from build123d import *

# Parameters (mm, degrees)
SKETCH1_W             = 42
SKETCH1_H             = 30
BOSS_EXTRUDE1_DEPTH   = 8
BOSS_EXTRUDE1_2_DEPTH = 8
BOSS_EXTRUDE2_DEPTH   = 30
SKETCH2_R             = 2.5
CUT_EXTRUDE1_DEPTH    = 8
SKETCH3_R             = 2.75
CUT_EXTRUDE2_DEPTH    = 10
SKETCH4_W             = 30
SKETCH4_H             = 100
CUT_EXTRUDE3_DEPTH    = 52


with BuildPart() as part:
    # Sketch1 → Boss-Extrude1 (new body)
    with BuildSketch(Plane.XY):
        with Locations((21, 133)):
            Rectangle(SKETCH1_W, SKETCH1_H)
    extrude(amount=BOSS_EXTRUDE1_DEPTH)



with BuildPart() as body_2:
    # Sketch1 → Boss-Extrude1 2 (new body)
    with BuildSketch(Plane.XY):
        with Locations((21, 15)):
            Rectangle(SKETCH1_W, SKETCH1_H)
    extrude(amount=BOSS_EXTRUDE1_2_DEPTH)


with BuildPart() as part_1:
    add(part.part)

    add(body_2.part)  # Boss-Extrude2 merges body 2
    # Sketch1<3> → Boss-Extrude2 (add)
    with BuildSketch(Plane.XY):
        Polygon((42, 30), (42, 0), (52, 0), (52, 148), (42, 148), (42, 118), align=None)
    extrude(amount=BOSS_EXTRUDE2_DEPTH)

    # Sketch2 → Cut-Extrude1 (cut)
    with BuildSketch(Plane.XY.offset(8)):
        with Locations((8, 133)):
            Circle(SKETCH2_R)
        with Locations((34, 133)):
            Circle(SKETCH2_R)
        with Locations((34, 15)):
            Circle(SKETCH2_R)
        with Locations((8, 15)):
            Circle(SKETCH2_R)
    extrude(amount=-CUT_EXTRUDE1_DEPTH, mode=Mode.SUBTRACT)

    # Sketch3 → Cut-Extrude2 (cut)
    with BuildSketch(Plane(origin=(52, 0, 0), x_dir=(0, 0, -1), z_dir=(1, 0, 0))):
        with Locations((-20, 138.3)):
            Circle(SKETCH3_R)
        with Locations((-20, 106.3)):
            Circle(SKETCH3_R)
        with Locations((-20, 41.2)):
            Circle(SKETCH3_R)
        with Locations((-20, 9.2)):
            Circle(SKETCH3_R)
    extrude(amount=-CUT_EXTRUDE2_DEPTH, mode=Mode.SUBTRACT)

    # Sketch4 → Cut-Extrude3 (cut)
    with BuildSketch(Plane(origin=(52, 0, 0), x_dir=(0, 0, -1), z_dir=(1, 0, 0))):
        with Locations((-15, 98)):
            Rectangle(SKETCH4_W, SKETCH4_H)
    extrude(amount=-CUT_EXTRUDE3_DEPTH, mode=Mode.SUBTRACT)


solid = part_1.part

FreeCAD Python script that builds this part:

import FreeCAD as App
import Part
import Sketcher

V = App.Vector
Q = App.Units.Quantity

doc = App.newDocument("Part")
body = doc.addObject("PartDesign::Body", "Body")

sketch1 = body.newObject("Sketcher::SketchObject", "Sketch")
sketch1.AttachmentSupport = (doc.getObject("XY_Plane"), [""])
sketch1.MapMode = "FlatFace"
sketch1.addGeometry(Part.LineSegment(V(0, 148, 0), V(0, 118, 0)), False)
sketch1.addGeometry(Part.LineSegment(V(0, 118, 0), V(42, 118, 0)), False)
sketch1.addGeometry(Part.LineSegment(V(42, 118, 0), V(42, 148, 0)), False)
sketch1.addGeometry(Part.LineSegment(V(42, 148, 0), V(0, 148, 0)), False)
sketch1.addConstraint(Sketcher.Constraint("Coincident", 0, 2, 1, 1))
sketch1.addConstraint(Sketcher.Constraint("Coincident", 1, 2, 2, 1))
sketch1.addConstraint(Sketcher.Constraint("Coincident", 2, 2, 3, 1))
sketch1.addConstraint(Sketcher.Constraint("Coincident", 3, 2, 0, 1))
sketch1.addConstraint(Sketcher.Constraint("Vertical", 0))
sketch1.addConstraint(Sketcher.Constraint("Horizontal", 1))
sketch1.addConstraint(Sketcher.Constraint("Vertical", 2))
sketch1.addConstraint(Sketcher.Constraint("Horizontal", 3))
sketch1.addConstraint(Sketcher.Constraint("PointOnObject", 0, 2, -2))
sketch1.addConstraint(Sketcher.Constraint("DistanceX", 1, 1, 1, 2, Q("42 mm")))
sketch1.addConstraint(Sketcher.Constraint("DistanceY", 0, 2, 0, 1, Q("30 mm")))
sketch1.addConstraint(Sketcher.Constraint("DistanceY", -1, 1, 0, 2, Q("118 mm")))
pad1 = body.newObject("PartDesign::Pad", "Pad")
pad1.Profile = sketch1
pad1.Length = 8
body2 = doc.addObject("PartDesign::Body", "Body001")

sketch2 = body2.newObject("Sketcher::SketchObject", "Sketch001")
sketch2.AttachmentSupport = (doc.getObject("XY_Plane001"), [""])
sketch2.MapMode = "FlatFace"
sketch2.addGeometry(Part.LineSegment(V(0, 30, 0), V(0, 0, 0)), False)
sketch2.addGeometry(Part.LineSegment(V(0, 0, 0), V(42, 0, 0)), False)
sketch2.addGeometry(Part.LineSegment(V(42, 0, 0), V(42, 30, 0)), False)
sketch2.addGeometry(Part.LineSegment(V(42, 30, 0), V(0, 30, 0)), False)
sketch2.addConstraint(Sketcher.Constraint("Coincident", 0, 2, 1, 1))
sketch2.addConstraint(Sketcher.Constraint("Coincident", 1, 2, 2, 1))
sketch2.addConstraint(Sketcher.Constraint("Coincident", 2, 2, 3, 1))
sketch2.addConstraint(Sketcher.Constraint("Coincident", 3, 2, 0, 1))
sketch2.addConstraint(Sketcher.Constraint("Vertical", 0))
sketch2.addConstraint(Sketcher.Constraint("Horizontal", 1))
sketch2.addConstraint(Sketcher.Constraint("Vertical", 2))
sketch2.addConstraint(Sketcher.Constraint("Horizontal", 3))
sketch2.addConstraint(Sketcher.Constraint("Coincident", 0, 2, -1, 1))
sketch2.addConstraint(Sketcher.Constraint("DistanceX", 1, 1, 1, 2, Q("42 mm")))
sketch2.addConstraint(Sketcher.Constraint("DistanceY", 0, 2, 0, 1, Q("30 mm")))
pad2 = body2.newObject("PartDesign::Pad", "Pad001")
pad2.Profile = sketch2
pad2.Length = 8
body.AllowCompound = True
doc.recompute()

boolean = body.newObject("PartDesign::Boolean", "Boolean")
boolean.Type = "Fuse"
boolean.addObjects([body2])

sketch3 = body.newObject("Sketcher::SketchObject", "Sketch002")
sketch3.AttachmentSupport = (doc.getObject("XY_Plane"), [""])
sketch3.MapMode = "FlatFace"
sketch3.addGeometry(Part.LineSegment(V(42, 0, 0), V(52, 0, 0)), False)
sketch3.addGeometry(Part.LineSegment(V(52, 0, 0), V(52, 148, 0)), False)
sketch3.addGeometry(Part.LineSegment(V(52, 148, 0), V(42, 148, 0)), False)
sketch3.addGeometry(Part.LineSegment(V(42, 148, 0), V(42, 0, 0)), False)
sketch3.addConstraint(Sketcher.Constraint("Coincident", 0, 2, 1, 1))
sketch3.addConstraint(Sketcher.Constraint("Coincident", 1, 2, 2, 1))
sketch3.addConstraint(Sketcher.Constraint("Coincident", 2, 2, 3, 1))
sketch3.addConstraint(Sketcher.Constraint("Coincident", 3, 2, 0, 1))
sketch3.addConstraint(Sketcher.Constraint("Horizontal", 0))
sketch3.addConstraint(Sketcher.Constraint("Vertical", 1))
sketch3.addConstraint(Sketcher.Constraint("Horizontal", 2))
sketch3.addConstraint(Sketcher.Constraint("Vertical", 3))
sketch3.addConstraint(Sketcher.Constraint("PointOnObject", 0, 2, -1))
sketch3.addConstraint(Sketcher.Constraint("DistanceX", 0, 1, 0, 2, Q("10 mm")))
sketch3.addConstraint(Sketcher.Constraint("DistanceY", 1, 1, 1, 2, Q("148 mm")))
sketch3.addConstraint(Sketcher.Constraint("DistanceX", -1, 1, 0, 2, Q("52 mm")))
pad3 = body.newObject("PartDesign::Pad", "Pad002")
pad3.Profile = sketch3
pad3.Length = 30

sketch4 = body.newObject("Sketcher::SketchObject", "Sketch003")
sketch4.AttachmentSupport = (doc.getObject("XY_Plane"), [""])
sketch4.MapMode = "FlatFace"
sketch4.AttachmentOffset = App.Placement(V(0, 0, 8), App.Rotation())
sketch4.addGeometry(Part.Circle(V(8, 133, 0), V(0, 0, 1), 2.5), False)
sketch4.addGeometry(Part.Circle(V(34, 133, 0), V(0, 0, 1), 2.5), False)
sketch4.addGeometry(Part.Circle(V(34, 15, 0), V(0, 0, 1), 2.5), False)
sketch4.addGeometry(Part.Circle(V(8, 15, 0), V(0, 0, 1), 2.5), False)
sketch4.addConstraint(Sketcher.Constraint("Equal", 0, 1))
sketch4.addConstraint(Sketcher.Constraint("Equal", 1, 2))
sketch4.addConstraint(Sketcher.Constraint("Equal", 2, 3))
sketch4.addConstraint(Sketcher.Constraint("Horizontal", 0, 3, 1, 3))
sketch4.addConstraint(Sketcher.Constraint("Horizontal", 2, 3, 3, 3))
sketch4.addConstraint(Sketcher.Constraint("Vertical", 1, 3, 2, 3))
sketch4.addConstraint(Sketcher.Constraint("Vertical", 0, 3, 3, 3))
sketch4.addConstraint(Sketcher.Constraint("Diameter", 0, Q("5 mm")))
sketch4.addConstraint(Sketcher.Constraint("DistanceX", -1, 1, 0, 3, Q("8 mm")))
sketch4.addConstraint(Sketcher.Constraint("DistanceY", -1, 1, 0, 3, Q("133 mm")))
sketch4.addConstraint(Sketcher.Constraint("DistanceX", -1, 1, 1, 3, Q("34 mm")))
sketch4.addConstraint(Sketcher.Constraint("DistanceY", -1, 1, 2, 3, Q("15 mm")))
pocket1 = body.newObject("PartDesign::Pocket", "Pocket")
pocket1.Profile = sketch4
pocket1.Length = 8

sketch5 = body.newObject("Sketcher::SketchObject", "Sketch004")
sketch5.AttachmentSupport = (doc.getObject("YZ_Plane"), [""])
sketch5.MapMode = "FlatFace"
sketch5.AttachmentOffset = App.Placement(V(0, 0, 52), App.Rotation())
sketch5.addGeometry(Part.Circle(V(138.3, 20, 0), V(0, 0, 1), 2.8), False)
sketch5.addGeometry(Part.Circle(V(106.3, 20, 0), V(0, 0, 1), 2.8), False)
sketch5.addGeometry(Part.Circle(V(41.2, 20, 0), V(0, 0, 1), 2.8), False)
sketch5.addGeometry(Part.Circle(V(9.2, 20, 0), V(0, 0, 1), 2.8), False)
sketch5.addConstraint(Sketcher.Constraint("Equal", 0, 1))
sketch5.addConstraint(Sketcher.Constraint("Equal", 1, 2))
sketch5.addConstraint(Sketcher.Constraint("Equal", 2, 3))
sketch5.addConstraint(Sketcher.Constraint("Horizontal", 0, 3, 1, 3))
sketch5.addConstraint(Sketcher.Constraint("Horizontal", 1, 3, 2, 3))
sketch5.addConstraint(Sketcher.Constraint("Horizontal", 2, 3, 3, 3))
sketch5.addConstraint(Sketcher.Constraint("Diameter", 0, Q("5.5 mm")))
sketch5.addConstraint(Sketcher.Constraint("DistanceY", -1, 1, 0, 3, Q("20 mm")))
sketch5.addConstraint(Sketcher.Constraint("DistanceX", 1, 3, 0, 3, Q("32 mm")))
sketch5.addConstraint(Sketcher.Constraint("DistanceX", 3, 3, 2, 3, Q("32 mm")))
sketch5.addConstraint(Sketcher.Constraint("DistanceX", -1, 1, 0, 3, Q("138.3 mm")))
sketch5.addConstraint(Sketcher.Constraint("DistanceX", -1, 1, 2, 3, Q("41.2 mm")))
pocket2 = body.newObject("PartDesign::Pocket", "Pocket001")
pocket2.Profile = sketch5
pocket2.Length = 10

sketch6 = body.newObject("Sketcher::SketchObject", "Sketch005")
sketch6.AttachmentSupport = (doc.getObject("YZ_Plane"), [""])
sketch6.MapMode = "FlatFace"
sketch6.AttachmentOffset = App.Placement(V(0, 0, 52), App.Rotation())
sketch6.addGeometry(Part.LineSegment(V(148, 30, 0), V(48, 30, 0)), False)
sketch6.addGeometry(Part.LineSegment(V(48, 30, 0), V(48, 0, 0)), False)
sketch6.addGeometry(Part.LineSegment(V(48, 0, 0), V(148, 0, 0)), False)
sketch6.addGeometry(Part.LineSegment(V(148, 0, 0), V(148, 30, 0)), False)
sketch6.addConstraint(Sketcher.Constraint("Coincident", 0, 2, 1, 1))
sketch6.addConstraint(Sketcher.Constraint("Coincident", 1, 2, 2, 1))
sketch6.addConstraint(Sketcher.Constraint("Coincident", 2, 2, 3, 1))
sketch6.addConstraint(Sketcher.Constraint("Coincident", 3, 2, 0, 1))
sketch6.addConstraint(Sketcher.Constraint("Horizontal", 0))
sketch6.addConstraint(Sketcher.Constraint("Vertical", 1))
sketch6.addConstraint(Sketcher.Constraint("Horizontal", 2))
sketch6.addConstraint(Sketcher.Constraint("Vertical", 3))
sketch6.addConstraint(Sketcher.Constraint("PointOnObject", 1, 2, -1))
sketch6.addConstraint(Sketcher.Constraint("DistanceX", 0, 2, 0, 1, Q("100 mm")))
sketch6.addConstraint(Sketcher.Constraint("DistanceY", 1, 2, 1, 1, Q("30 mm")))
sketch6.addConstraint(Sketcher.Constraint("DistanceX", -1, 1, 0, 2, Q("48 mm")))
pocket3 = body.newObject("PartDesign::Pocket", "Pocket002")
pocket3.Profile = sketch6
pocket3.Length = 52

doc.recompute()
